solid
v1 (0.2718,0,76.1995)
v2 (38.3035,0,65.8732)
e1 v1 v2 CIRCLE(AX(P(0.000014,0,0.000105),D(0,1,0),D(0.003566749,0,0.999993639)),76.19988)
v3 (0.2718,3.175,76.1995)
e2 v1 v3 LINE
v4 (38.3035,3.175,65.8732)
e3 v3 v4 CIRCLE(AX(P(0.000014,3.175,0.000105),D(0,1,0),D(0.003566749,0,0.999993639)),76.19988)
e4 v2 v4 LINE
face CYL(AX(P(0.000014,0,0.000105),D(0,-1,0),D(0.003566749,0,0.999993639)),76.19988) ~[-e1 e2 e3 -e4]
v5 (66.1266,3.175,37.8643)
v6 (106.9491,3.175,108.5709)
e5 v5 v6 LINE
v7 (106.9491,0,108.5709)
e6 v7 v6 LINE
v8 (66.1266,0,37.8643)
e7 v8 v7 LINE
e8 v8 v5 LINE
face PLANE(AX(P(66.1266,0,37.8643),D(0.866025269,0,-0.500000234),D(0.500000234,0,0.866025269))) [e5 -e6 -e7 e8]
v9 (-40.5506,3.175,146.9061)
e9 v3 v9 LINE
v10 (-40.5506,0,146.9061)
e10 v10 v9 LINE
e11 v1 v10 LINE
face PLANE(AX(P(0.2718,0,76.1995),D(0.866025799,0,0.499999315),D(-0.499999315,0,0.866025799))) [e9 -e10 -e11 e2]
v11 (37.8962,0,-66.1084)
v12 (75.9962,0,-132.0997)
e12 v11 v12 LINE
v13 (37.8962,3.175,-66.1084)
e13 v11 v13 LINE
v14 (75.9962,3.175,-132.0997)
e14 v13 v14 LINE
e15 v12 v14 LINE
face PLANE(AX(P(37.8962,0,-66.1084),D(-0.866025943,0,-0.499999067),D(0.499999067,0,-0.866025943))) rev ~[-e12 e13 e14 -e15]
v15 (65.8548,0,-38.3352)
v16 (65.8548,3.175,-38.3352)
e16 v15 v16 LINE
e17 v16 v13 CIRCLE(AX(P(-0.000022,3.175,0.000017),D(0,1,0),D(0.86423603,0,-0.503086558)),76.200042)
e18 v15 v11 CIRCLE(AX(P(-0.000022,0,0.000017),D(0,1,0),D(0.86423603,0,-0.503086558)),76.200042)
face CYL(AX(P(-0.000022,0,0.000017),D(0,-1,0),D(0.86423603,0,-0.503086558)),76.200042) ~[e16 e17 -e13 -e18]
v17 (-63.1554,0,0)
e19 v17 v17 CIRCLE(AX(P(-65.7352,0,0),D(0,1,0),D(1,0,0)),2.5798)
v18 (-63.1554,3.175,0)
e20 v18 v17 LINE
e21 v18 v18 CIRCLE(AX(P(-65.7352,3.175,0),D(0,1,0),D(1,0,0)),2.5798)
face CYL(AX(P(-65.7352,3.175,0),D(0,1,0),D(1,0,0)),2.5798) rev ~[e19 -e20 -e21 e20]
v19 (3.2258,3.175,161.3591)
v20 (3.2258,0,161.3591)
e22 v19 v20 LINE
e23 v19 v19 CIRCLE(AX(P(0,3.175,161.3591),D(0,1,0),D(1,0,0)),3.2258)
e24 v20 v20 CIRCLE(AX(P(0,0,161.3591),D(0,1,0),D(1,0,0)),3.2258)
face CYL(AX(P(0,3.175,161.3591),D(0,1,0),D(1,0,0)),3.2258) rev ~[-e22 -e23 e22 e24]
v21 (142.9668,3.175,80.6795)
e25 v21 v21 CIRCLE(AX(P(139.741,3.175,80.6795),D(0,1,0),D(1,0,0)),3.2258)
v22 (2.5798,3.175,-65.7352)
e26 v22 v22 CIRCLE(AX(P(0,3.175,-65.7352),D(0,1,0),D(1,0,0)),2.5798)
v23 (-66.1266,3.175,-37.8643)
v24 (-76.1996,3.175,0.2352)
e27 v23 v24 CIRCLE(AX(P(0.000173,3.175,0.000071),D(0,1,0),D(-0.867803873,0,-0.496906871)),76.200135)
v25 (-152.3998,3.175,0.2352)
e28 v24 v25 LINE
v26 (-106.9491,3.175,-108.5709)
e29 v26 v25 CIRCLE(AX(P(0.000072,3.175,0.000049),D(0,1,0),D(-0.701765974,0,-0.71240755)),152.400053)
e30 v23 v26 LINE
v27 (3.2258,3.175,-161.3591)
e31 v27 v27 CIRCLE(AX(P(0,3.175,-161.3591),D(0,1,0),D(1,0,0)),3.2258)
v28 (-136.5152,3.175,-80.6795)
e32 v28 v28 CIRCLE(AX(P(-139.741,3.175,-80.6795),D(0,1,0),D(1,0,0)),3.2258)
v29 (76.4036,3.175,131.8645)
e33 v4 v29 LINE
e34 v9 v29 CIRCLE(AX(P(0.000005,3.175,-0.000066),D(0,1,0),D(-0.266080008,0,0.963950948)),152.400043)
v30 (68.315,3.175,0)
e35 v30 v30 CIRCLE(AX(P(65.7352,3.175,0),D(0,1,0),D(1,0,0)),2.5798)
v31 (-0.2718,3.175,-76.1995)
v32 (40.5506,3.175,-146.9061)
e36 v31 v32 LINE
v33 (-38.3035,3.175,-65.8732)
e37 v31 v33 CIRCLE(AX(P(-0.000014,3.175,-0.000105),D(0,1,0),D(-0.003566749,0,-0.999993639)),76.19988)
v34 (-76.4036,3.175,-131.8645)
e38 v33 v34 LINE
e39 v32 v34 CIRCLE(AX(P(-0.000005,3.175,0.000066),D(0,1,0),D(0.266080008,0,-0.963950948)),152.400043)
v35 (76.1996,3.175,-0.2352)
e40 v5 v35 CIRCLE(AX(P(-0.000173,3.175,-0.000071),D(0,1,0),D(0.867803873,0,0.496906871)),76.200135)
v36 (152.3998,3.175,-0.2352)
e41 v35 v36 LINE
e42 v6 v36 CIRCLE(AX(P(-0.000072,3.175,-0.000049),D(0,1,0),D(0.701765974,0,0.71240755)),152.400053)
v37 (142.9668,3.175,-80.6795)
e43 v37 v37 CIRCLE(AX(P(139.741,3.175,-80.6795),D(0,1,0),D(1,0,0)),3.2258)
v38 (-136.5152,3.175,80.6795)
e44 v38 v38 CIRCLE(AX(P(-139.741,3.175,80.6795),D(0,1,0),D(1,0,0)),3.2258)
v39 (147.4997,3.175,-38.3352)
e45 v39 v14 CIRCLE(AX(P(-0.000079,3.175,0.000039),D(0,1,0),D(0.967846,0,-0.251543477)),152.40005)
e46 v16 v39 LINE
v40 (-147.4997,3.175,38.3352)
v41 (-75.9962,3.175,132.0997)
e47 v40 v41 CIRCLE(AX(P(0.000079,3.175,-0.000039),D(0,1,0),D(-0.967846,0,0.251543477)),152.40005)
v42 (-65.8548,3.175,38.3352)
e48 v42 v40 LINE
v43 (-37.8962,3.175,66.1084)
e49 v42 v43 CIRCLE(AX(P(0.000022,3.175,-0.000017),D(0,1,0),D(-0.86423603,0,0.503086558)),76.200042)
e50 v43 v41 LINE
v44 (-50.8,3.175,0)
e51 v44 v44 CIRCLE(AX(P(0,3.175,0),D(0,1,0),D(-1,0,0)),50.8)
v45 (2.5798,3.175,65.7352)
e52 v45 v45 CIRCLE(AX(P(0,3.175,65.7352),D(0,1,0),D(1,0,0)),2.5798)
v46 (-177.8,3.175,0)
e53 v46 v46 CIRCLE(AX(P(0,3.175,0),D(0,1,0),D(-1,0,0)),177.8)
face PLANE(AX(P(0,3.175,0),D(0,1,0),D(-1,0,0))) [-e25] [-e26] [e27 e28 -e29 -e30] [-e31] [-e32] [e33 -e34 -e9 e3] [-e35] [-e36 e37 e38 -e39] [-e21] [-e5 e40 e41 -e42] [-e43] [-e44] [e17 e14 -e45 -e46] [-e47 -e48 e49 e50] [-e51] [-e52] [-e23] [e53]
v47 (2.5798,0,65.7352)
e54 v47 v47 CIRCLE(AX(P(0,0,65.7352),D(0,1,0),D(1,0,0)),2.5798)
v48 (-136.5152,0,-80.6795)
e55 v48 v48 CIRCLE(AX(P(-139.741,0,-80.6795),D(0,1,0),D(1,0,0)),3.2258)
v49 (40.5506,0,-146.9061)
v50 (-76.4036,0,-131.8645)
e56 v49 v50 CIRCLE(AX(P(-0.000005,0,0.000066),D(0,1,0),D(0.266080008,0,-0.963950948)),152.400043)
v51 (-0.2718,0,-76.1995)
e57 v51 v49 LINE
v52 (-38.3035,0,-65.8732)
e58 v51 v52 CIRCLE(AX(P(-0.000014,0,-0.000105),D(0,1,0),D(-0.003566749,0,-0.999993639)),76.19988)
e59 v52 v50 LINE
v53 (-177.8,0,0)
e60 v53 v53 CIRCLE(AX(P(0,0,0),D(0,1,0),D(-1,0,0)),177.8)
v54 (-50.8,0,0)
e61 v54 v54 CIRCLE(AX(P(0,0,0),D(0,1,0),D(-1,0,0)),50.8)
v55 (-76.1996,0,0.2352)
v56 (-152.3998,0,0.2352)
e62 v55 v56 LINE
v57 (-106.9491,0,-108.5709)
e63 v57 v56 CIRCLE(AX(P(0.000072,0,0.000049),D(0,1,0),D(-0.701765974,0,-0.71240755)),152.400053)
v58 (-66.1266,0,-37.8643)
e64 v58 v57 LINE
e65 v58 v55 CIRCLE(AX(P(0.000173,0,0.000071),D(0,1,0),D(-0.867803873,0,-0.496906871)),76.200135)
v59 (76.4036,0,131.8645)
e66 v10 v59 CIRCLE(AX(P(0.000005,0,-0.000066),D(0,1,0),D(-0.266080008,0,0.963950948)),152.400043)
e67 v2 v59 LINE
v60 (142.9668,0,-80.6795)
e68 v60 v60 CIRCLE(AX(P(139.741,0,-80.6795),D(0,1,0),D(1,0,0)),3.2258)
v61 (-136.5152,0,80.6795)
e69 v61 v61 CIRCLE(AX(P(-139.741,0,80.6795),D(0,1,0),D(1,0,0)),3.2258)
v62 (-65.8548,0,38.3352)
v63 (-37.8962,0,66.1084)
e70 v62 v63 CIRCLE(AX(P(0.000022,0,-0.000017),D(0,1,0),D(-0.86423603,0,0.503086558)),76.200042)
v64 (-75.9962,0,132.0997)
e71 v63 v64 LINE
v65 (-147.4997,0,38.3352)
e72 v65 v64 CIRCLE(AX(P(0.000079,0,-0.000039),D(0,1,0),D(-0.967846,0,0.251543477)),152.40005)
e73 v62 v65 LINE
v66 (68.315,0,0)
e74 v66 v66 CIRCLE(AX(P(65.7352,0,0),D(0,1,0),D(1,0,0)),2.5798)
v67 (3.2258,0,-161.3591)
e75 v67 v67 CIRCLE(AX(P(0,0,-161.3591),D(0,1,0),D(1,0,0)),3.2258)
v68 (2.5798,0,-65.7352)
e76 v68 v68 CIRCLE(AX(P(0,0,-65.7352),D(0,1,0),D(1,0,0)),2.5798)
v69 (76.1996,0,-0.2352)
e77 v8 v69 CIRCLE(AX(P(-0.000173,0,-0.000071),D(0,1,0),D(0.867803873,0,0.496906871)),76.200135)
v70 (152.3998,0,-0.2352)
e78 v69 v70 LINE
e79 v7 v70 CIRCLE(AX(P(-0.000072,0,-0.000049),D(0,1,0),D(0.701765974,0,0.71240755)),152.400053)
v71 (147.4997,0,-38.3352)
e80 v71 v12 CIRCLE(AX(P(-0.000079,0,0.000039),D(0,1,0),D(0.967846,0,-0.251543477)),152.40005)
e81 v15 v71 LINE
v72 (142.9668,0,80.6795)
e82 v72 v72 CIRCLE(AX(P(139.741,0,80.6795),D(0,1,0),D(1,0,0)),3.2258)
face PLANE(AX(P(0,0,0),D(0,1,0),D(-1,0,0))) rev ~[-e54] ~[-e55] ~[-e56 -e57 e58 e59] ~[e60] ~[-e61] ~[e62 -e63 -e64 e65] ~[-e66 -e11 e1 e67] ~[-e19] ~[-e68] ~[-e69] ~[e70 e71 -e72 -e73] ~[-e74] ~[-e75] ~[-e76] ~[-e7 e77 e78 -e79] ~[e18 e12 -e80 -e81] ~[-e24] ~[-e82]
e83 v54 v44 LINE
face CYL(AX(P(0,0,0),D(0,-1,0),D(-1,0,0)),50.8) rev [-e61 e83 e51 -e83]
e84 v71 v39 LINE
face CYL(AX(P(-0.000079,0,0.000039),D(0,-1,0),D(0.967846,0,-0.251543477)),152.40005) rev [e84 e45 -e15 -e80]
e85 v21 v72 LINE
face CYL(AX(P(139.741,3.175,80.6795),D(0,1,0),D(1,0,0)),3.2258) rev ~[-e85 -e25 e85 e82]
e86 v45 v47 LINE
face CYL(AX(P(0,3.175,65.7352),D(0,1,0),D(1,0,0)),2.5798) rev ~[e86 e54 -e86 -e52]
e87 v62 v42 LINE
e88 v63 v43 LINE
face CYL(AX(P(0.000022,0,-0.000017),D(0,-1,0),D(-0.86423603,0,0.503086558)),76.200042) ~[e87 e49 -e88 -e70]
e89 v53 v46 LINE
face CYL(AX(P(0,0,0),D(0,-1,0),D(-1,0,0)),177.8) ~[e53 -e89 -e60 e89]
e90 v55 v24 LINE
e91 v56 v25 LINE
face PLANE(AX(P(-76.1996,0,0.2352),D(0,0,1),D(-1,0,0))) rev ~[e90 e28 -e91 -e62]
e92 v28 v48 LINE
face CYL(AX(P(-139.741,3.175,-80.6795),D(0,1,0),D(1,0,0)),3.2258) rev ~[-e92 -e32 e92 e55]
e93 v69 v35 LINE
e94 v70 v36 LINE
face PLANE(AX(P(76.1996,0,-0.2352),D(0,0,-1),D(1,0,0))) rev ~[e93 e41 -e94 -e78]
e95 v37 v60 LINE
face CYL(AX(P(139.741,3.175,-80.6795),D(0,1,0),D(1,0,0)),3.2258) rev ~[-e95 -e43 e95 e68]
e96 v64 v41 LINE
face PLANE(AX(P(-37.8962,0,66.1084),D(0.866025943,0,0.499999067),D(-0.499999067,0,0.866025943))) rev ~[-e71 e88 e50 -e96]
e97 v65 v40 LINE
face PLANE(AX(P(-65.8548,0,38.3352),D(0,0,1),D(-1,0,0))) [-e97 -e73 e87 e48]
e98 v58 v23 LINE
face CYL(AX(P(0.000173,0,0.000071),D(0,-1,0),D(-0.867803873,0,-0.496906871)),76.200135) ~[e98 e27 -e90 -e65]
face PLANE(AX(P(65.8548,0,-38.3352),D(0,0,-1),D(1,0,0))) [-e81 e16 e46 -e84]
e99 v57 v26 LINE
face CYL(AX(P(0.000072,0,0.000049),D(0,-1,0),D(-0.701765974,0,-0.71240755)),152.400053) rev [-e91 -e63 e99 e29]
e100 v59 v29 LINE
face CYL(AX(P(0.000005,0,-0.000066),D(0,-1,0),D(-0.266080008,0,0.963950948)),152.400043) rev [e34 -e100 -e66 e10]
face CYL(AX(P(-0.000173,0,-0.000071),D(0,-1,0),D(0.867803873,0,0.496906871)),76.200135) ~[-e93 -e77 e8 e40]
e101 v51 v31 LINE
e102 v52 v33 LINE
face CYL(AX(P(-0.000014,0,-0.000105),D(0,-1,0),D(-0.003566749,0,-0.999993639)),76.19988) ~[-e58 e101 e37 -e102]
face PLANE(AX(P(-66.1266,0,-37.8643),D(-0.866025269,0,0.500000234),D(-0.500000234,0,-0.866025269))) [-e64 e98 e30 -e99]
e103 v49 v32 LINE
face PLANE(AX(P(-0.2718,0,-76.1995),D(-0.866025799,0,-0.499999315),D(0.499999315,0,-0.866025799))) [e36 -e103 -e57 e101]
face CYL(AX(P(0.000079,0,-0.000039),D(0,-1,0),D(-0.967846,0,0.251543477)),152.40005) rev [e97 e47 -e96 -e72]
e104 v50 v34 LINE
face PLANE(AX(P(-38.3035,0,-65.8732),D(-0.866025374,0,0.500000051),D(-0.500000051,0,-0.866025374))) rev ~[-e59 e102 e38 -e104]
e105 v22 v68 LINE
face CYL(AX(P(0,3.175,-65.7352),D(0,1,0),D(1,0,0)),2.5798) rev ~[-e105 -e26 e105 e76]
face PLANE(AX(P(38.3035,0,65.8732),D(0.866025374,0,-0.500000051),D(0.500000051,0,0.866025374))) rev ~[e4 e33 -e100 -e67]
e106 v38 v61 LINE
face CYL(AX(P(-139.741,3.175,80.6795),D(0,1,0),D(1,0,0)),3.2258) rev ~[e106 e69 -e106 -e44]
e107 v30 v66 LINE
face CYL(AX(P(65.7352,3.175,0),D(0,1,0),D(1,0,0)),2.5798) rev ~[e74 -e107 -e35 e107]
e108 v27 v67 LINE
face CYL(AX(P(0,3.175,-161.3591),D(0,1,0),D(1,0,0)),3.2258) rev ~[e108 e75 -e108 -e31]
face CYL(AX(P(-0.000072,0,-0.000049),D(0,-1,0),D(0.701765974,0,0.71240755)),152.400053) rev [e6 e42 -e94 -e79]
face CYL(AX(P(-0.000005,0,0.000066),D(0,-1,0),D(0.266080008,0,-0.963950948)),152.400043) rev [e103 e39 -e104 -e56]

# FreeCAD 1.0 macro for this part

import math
import FreeCAD as App
import Part
import Sketcher

V = App.Vector
Q = App.Units.Quantity

doc = App.newDocument("Part")
params = doc.addObject("Spreadsheet::Sheet", "Params")
for row, (alias, value) in enumerate([
    ("sketch1_diameter", "14 in"),
    ("sketch1_diameter2", "4 in"),
    ("sketch1_radius", "3 in"),
    ("sketch1_radius2", "6 in"),
    ("pad1_length", "0.125 in"),
    ("sketch2_diameter", "0.2031339 in"),
    ("sketch2_diameter2", "0.254 in"),
    ("pocket1_length", "0.125 in"),
], start=1):
    params.set(f"A{row}", alias)
    params.set(f"B{row}", "=" + value)
    params.setAlias(f"B{row}", alias)

body = doc.addObject("PartDesign::Body", "Body")

# Sketch on XZ plane
sketch1 = doc.addObject("Sketcher::SketchObject", "Sketch")
body.addObject(sketch1)
sketch1.AttachmentSupport = (doc.XZ_Plane, [""])
sketch1.MapMode = "FlatFace"
sketch1.addGeometry([
    Part.Circle(V(0, 0, 0), V(0, 0, 1), 178),  # 0
    Part.LineSegment(V(147, -38, 0), V(66, -38, 0)),  # 1
    Part.ArcOfCircle(Part.Circle(V(0, 0, 0), V(0, 0, 1), 76), math.radians(-60), math.radians(-30)),  # 2
    Part.LineSegment(V(38, -66, 0), V(76, -132, 0)),  # 3
    Part.ArcOfCircle(Part.Circle(V(0, 0, 0), V(0, 0, 1), 152), math.radians(-60), math.radians(-15)),  # 4
    Part.LineSegment(V(41, -147, 0), V(0, -76, 0)),  # 5
    Part.ArcOfCircle(Part.Circle(V(0, 0, 0), V(0, 0, 1), 76), math.radians(-120), math.radians(-90)),  # 6
    Part.LineSegment(V(-38, -66, 0), V(-76, -132, 0)),  # 7
    Part.ArcOfCircle(Part.Circle(V(0, 0, 0), V(0, 0, 1), 152), math.radians(-120), math.radians(-75)),  # 8
    Part.ArcOfCircle(Part.Circle(V(0, 0, 0), V(0, 0, 1), 76), math.radians(180), math.radians(210)),  # 9
    Part.LineSegment(V(-76, 0, 0), V(-152, 0, 0)),  # 10
    Part.ArcOfCircle(Part.Circle(V(0, 0, 0), V(0, 0, 1), 152), math.radians(180), math.radians(225)),  # 11
    Part.LineSegment(V(-107, -109, 0), V(-66, -38, 0)),  # 12
    Part.LineSegment(V(107, 109, 0), V(66, 38, 0)),  # 13
    Part.ArcOfCircle(Part.Circle(V(0, 0, 0), V(0, 0, 1), 76), math.radians(0), math.radians(30)),  # 14
    Part.LineSegment(V(76, 0, 0), V(152, 0, 0)),  # 15
    Part.ArcOfCircle(Part.Circle(V(0, 0, 0), V(0, 0, 1), 152), math.radians(0), math.radians(45)),  # 16
    Part.LineSegment(V(-41, 147, 0), V(0, 76, 0)),  # 17
    Part.ArcOfCircle(Part.Circle(V(0, 0, 0), V(0, 0, 1), 76), math.radians(60), math.radians(90)),  # 18
    Part.LineSegment(V(38, 66, 0), V(76, 132, 0)),  # 19
    Part.ArcOfCircle(Part.Circle(V(0, 0, 0), V(0, 0, 1), 152), math.radians(60), math.radians(105)),  # 20
    Part.Circle(V(0, 0, 0), V(0, 0, 1), 51),  # 21
    Part.LineSegment(V(-147, 38, 0), V(-66, 38, 0)),  # 22
    Part.ArcOfCircle(Part.Circle(V(0, 0, 0), V(0, 0, 1), 76), math.radians(120), math.radians(150)),  # 23
    Part.LineSegment(V(-38, 66, 0), V(-76, 132, 0)),  # 24
    Part.ArcOfCircle(Part.Circle(V(0, 0, 0), V(0, 0, 1), 152), math.radians(120), math.radians(165)),  # 25
], False)
sketch1.addConstraint([
    Sketcher.Constraint("Coincident", 1, 2, 2, 2),
    Sketcher.Constraint("Coincident", 2, 1, 3, 1),
    Sketcher.Constraint("Coincident", 3, 2, 4, 1),
    Sketcher.Constraint("Coincident", 4, 2, 1, 1),
    Sketcher.Constraint("Coincident", 5, 2, 6, 2),
    Sketcher.Constraint("Coincident", 6, 1, 7, 1),
    Sketcher.Constraint("Coincident", 7, 2, 8, 1),
    Sketcher.Constraint("Coincident", 8, 2, 5, 1),
    Sketcher.Constraint("Coincident", 9, 1, 10, 1),
    Sketcher.Constraint("Coincident", 10, 2, 11, 1),
    Sketcher.Constraint("Coincident", 11, 2, 12, 1),
    Sketcher.Constraint("Coincident", 12, 2, 9, 2),
    Sketcher.Constraint("Coincident", 13, 2, 14, 2),
    Sketcher.Constraint("Coincident", 14, 1, 15, 1),
    Sketcher.Constraint("Coincident", 15, 2, 16, 1),
    Sketcher.Constraint("Coincident", 16, 2, 13, 1),
    Sketcher.Constraint("Coincident", 17, 2, 18, 2),
    Sketcher.Constraint("Coincident", 18, 1, 19, 1),
    Sketcher.Constraint("Coincident", 19, 2, 20, 1),
    Sketcher.Constraint("Coincident", 20, 2, 17, 1),
    Sketcher.Constraint("Coincident", 22, 2, 23, 2),
    Sketcher.Constraint("Coincident", 23, 1, 24, 1),
    Sketcher.Constraint("Coincident", 24, 2, 25, 1),
    Sketcher.Constraint("Coincident", 25, 2, 22, 1),
    Sketcher.Constraint("Horizontal", 1),
    Sketcher.Constraint("Horizontal", 10),
    Sketcher.Constraint("Horizontal", 15),
    Sketcher.Constraint("Horizontal", 22),
    Sketcher.Constraint("Coincident", 0, 3, -1, 1),
    Sketcher.Constraint("Coincident", 2, 3, -1, 1),
    Sketcher.Constraint("Coincident", 4, 3, -1, 1),
    Sketcher.Constraint("Coincident", 6, 3, -1, 1),
    Sketcher.Constraint("Coincident", 8, 3, -1, 1),
    Sketcher.Constraint("Coincident", 9, 3, -1, 1),
    Sketcher.Constraint("Coincident", 11, 3, -1, 1),
    Sketcher.Constraint("Coincident", 14, 3, -1, 1),
    Sketcher.Constraint("Coincident", 16, 3, -1, 1),
    Sketcher.Constraint("Coincident", 18, 3, -1, 1),
    Sketcher.Constraint("Coincident", 20, 3, -1, 1),
    Sketcher.Constraint("Coincident", 21, 3, -1, 1),
    Sketcher.Constraint("Coincident", 23, 3, -1, 1),
    Sketcher.Constraint("Coincident", 25, 3, -1, 1),
    Sketcher.Constraint("Equal", 2, 6),
    Sketcher.Constraint("Equal", 4, 8),
    Sketcher.Constraint("Equal", 6, 9),
    Sketcher.Constraint("Equal", 8, 11),
    Sketcher.Constraint("Equal", 9, 14),
    Sketcher.Constraint("Equal", 11, 16),
    Sketcher.Constraint("Equal", 14, 18),
    Sketcher.Constraint("Equal", 16, 20),
    Sketcher.Constraint("Equal", 18, 23),
    Sketcher.Constraint("Equal", 20, 25),
    Sketcher.Constraint("Parallel", 3, 5),
    Sketcher.Constraint("Parallel", 7, 12),
    Sketcher.Constraint("Parallel", 12, 13),
    Sketcher.Constraint("Parallel", 5, 17),
    Sketcher.Constraint("Parallel", 13, 19),
    Sketcher.Constraint("Parallel", 17, 24),
    Sketcher.Constraint("Equal", 1, 22),
    Sketcher.Constraint("Equal", 5, 12),
    Sketcher.Constraint("Equal", 12, 13),
    Sketcher.Constraint("Equal", 13, 17),
    Sketcher.Constraint("Diameter", 0, Q("14 in")),
    Sketcher.Constraint("Diameter", 21, Q("4 in")),
    Sketcher.Constraint("Radius", 2, Q("3 in")),
    Sketcher.Constraint("Radius", 4, Q("6 in")),
    Sketcher.Constraint("DistanceX", 2, 1, 3, 2, Q("1.5 in")),
    Sketcher.Constraint("DistanceX", 7, 2, 6, 1, Q("1.5 in")),
    Sketcher.Constraint("DistanceY", 1, 2, 14, 1, Q("1.5 in")),
    Sketcher.Constraint("DistanceY", 9, 1, 22, 2, Q("1.5 in")),
    Sketcher.Constraint("DistanceX", 7, 2, 3, 2, Q("6 in")),
    Sketcher.Constraint("DistanceY", 12, 2, 9, 1, 38.0995),
    Sketcher.Constraint("DistanceX", 6, 1, -1, 1, Q("1.508 in")),
    Sketcher.Constraint("DistanceX", -1, 1, 18, 1, Q("1.508 in")),
    Sketcher.Constraint("DistanceX", 9, 1, 23, 1, Q("1.508 in")),
    Sketcher.Constraint("DistanceX", 1, 2, 1, 1, 81.645),
])
sketch1.setExpression("Constraints[62]", "Params.sketch1_diameter")
sketch1.setExpression("Constraints[63]", "Params.sketch1_diameter2")
sketch1.setExpression("Constraints[64]", "Params.sketch1_radius")
sketch1.setExpression("Constraints[65]", "Params.sketch1_radius2")
pad1 = doc.addObject("PartDesign::Pad", "Pad")
body.addObject(pad1)
pad1.Profile = sketch1
pad1.setExpression("Length", "Params.pad1_length")
pad1.Reversed = True

# Sketch on XZ plane
sketch2 = doc.addObject("Sketcher::SketchObject", "Sketch001")
body.addObject(sketch2)
sketch2.AttachmentSupport = (doc.XZ_Plane, [""])
sketch2.MapMode = "FlatFace"
sketch2.AttachmentOffset = App.Placement(V(0, 0, -0.125 * 25.4), App.Rotation())
sketch2.addGeometry([
    Part.Circle(V(-65.7, 0, 0), V(0, 0, 1), 2.6),  # 0
    Part.Circle(V(0, 65.7, 0), V(0, 0, 1), 2.6),  # 1
    Part.Circle(V(65.7, 0, 0), V(0, 0, 1), 2.6),  # 2
    Part.Circle(V(0, -65.7, 0), V(0, 0, 1), 2.6),  # 3
    Part.Circle(V(-139.7, -80.7, 0), V(0, 0, 1), 3.2),  # 4
    Part.Circle(V(0, -161.4, 0), V(0, 0, 1), 3.2),  # 5
    Part.Circle(V(139.7, -80.7, 0), V(0, 0, 1), 3.2),  # 6
    Part.Circle(V(139.7, 80.7, 0), V(0, 0, 1), 3.2),  # 7
    Part.Circle(V(0, 161.4, 0), V(0, 0, 1), 3.2),  # 8
    Part.Circle(V(-139.7, 80.7, 0), V(0, 0, 1), 3.2),  # 9
], False)
sketch2.addConstraint([
    Sketcher.Constraint("Equal", 0, 1),
    Sketcher.Constraint("Equal", 1, 2),
    Sketcher.Constraint("Equal", 2, 3),
    Sketcher.Constraint("Equal", 4, 5),
    Sketcher.Constraint("Equal", 5, 6),
    Sketcher.Constraint("Equal", 6, 7),
    Sketcher.Constraint("Equal", 7, 8),
    Sketcher.Constraint("Equal", 8, 9),
    Sketcher.Constraint("Symmetric", 0, 3, 2, 3, -1, 1),
    Sketcher.Constraint("Symmetric", 1, 3, 3, 3, -1, 1),
    Sketcher.Constraint("Symmetric", 4, 3, 7, 3, -1, 1),
    Sketcher.Constraint("Symmetric", 5, 3, 8, 3, -1, 1),
    Sketcher.Constraint("Symmetric", 6, 3, 9, 3, -1, 1),
    Sketcher.Constraint("Symmetric", 4, 3, 6, 3, -2),
    Sketcher.Constraint("PointOnObject", 0, 3, -1),
    Sketcher.Constraint("PointOnObject", 1, 3, -2),
    Sketcher.Constraint("PointOnObject", 5, 3, -2),
    Sketcher.Constraint("Diameter", 0, Q("0.2031339 in")),
    Sketcher.Constraint("Diameter", 4, Q("0.254 in")),
    Sketcher.Constraint("DistanceX", 0, 3, -1, 1, Q("2.588 in")),
    Sketcher.Constraint("DistanceY", -1, 1, 1, 3, Q("2.588 in")),
    Sketcher.Constraint("DistanceX", 4, 3, -1, 1, 139.741),
    Sketcher.Constraint("DistanceY", 4, 3, -1, 1, 80.6795),
    Sketcher.Constraint("DistanceY", 5, 3, -1, 1, 161.359),
])
sketch2.setExpression("Constraints[17]", "Params.sketch2_diameter")
sketch2.setExpression("Constraints[18]", "Params.sketch2_diameter2")
pocket1 = doc.addObject("PartDesign::Pocket", "Pocket")
body.addObject(pocket1)
pocket1.Profile = sketch2
pocket1.setExpression("Length", "Params.pocket1_length")
pocket1.Reversed = True

doc.recompute()
